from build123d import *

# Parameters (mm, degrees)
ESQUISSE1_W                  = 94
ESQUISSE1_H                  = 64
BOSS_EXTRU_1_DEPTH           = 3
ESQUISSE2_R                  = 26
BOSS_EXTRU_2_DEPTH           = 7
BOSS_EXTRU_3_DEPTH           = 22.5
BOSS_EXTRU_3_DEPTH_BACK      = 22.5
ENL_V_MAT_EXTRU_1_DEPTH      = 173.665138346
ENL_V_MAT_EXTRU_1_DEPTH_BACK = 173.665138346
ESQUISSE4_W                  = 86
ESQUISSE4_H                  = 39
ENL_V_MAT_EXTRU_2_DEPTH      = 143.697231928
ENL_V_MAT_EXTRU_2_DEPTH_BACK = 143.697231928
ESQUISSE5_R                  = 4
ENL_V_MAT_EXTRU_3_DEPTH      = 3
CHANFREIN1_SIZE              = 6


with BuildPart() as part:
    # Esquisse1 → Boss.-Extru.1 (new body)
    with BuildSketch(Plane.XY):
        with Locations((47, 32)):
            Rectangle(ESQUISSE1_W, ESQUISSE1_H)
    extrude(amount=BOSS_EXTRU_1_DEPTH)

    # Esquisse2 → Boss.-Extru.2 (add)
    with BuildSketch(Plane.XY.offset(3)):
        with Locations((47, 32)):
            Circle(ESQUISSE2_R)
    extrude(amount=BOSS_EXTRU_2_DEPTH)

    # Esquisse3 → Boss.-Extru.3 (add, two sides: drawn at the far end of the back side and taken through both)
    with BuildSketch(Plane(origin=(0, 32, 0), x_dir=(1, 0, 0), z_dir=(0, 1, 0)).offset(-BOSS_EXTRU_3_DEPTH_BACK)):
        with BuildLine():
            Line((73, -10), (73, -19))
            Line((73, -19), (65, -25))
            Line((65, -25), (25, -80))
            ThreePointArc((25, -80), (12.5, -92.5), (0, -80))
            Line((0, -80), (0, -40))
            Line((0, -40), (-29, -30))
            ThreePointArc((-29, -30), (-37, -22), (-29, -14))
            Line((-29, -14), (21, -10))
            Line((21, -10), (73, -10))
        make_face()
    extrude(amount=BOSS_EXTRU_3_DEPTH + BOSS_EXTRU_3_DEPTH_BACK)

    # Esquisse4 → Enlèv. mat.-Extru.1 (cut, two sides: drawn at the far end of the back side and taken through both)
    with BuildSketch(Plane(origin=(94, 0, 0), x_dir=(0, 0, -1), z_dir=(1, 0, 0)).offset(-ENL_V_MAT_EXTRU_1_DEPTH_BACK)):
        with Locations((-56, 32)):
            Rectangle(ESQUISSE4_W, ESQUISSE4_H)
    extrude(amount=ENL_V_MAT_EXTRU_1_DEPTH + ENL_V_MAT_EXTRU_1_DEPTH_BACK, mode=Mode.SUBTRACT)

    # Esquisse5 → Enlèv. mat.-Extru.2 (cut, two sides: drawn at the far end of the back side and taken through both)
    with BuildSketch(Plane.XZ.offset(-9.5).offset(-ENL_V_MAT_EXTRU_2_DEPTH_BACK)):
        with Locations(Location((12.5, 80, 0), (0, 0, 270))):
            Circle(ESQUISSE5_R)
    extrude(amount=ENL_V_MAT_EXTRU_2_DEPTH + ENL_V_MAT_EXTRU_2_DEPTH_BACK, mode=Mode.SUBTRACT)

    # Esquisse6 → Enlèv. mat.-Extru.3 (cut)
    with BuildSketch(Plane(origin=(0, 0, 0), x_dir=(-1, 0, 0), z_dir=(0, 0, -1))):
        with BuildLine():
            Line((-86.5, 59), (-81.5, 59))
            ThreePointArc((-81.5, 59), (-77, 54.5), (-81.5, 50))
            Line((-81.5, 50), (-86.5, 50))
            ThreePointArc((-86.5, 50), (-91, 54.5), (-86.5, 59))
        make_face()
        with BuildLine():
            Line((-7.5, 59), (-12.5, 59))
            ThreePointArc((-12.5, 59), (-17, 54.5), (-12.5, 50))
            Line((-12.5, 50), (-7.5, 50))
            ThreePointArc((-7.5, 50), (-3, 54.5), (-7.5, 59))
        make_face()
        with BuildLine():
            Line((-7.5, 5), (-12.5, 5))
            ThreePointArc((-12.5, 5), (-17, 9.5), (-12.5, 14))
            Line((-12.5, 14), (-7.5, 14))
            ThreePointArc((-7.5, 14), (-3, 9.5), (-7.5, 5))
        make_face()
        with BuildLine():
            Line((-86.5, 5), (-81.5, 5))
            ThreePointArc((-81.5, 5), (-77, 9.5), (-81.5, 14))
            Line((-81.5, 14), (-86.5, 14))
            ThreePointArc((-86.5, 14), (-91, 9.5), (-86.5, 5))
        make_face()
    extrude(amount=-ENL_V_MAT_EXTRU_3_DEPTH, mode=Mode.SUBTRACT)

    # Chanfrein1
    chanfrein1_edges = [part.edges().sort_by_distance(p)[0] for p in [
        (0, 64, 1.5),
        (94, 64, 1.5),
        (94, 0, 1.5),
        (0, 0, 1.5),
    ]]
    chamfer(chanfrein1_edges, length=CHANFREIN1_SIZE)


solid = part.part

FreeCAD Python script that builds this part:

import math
import FreeCAD as App
import Part
import Sketcher

V = App.Vector
Q = App.Units.Quantity


def edges_at(feature, points):
    """Names of the edges that pass closest to the given points."""
    edges = feature.Shape.Edges
    near = lambda p: min(range(len(edges)), key=lambda i: edges[i].distToShape(Part.Vertex(*p))[0])
    return sorted({f"Edge{near(p) + 1}" for p in points})

doc = App.newDocument("Part")
body = doc.addObject("PartDesign::Body", "Body")

sketch1 = doc.addObject("Sketcher::SketchObject", "Sketch")
body.addObject(sketch1)
sketch1.AttachmentSupport = (doc.XY_Plane, [""])
sketch1.MapMode = "FlatFace"
sketch1.addGeometry(Part.LineSegment(V(0, 64, 0), V(0, 0, 0)), False)
sketch1.addGeometry(Part.LineSegment(V(0, 0, 0), V(94, 0, 0)), False)
sketch1.addGeometry(Part.LineSegment(V(94, 0, 0), V(94, 64, 0)), False)
sketch1.addGeometry(Part.LineSegment(V(94, 64, 0), V(0, 64, 0)), False)
sketch1.addConstraint(Sketcher.Constraint("Coincident", 0, 2, 1, 1))
sketch1.addConstraint(Sketcher.Constraint("Coincident", 1, 2, 2, 1))
sketch1.addConstraint(Sketcher.Constraint("Coincident", 2, 2, 3, 1))
sketch1.addConstraint(Sketcher.Constraint("Coincident", 3, 2, 0, 1))
sketch1.addConstraint(Sketcher.Constraint("Vertical", 0))
sketch1.addConstraint(Sketcher.Constraint("Horizontal", 1))
sketch1.addConstraint(Sketcher.Constraint("Vertical", 2))
sketch1.addConstraint(Sketcher.Constraint("Horizontal", 3))
sketch1.addConstraint(Sketcher.Constraint("Coincident", 0, 2, -1, 1))
sketch1.addConstraint(Sketcher.Constraint("DistanceX", 1, 1, 1, 2, Q("94 mm")))
sketch1.addConstraint(Sketcher.Constraint("DistanceY", 0, 2, 0, 1, Q("64 mm")))
pad1 = doc.addObject("PartDesign::Pad", "Pad")
body.addObject(pad1)
pad1.Profile = sketch1
pad1.Length = 3

sketch2 = doc.addObject("Sketcher::SketchObject", "Sketch001")
body.addObject(sketch2)
sketch2.AttachmentSupport = (doc.XY_Plane, [""])
sketch2.MapMode = "FlatFace"
sketch2.AttachmentOffset = App.Placement(V(0, 0, 3), App.Rotation())
sketch2.addGeometry(Part.Circle(V(47, 32, 0), V(0, 0, 1), 26), False)
sketch2.addConstraint(Sketcher.Constraint("Diameter", 0, Q("52 mm")))
sketch2.addConstraint(Sketcher.Constraint("DistanceX", -1, 1, 0, 3, Q("47 mm")))
sketch2.addConstraint(Sketcher.Constraint("DistanceY", -1, 1, 0, 3, Q("32 mm")))
pad2 = doc.addObject("PartDesign::Pad", "Pad001")
body.addObject(pad2)
pad2.Profile = sketch2
pad2.Length = 7

sketch3 = doc.addObject("Sketcher::SketchObject", "Sketch002")
body.addObject(sketch3)
sketch3.AttachmentSupport = (doc.XZ_Plane, [""])
sketch3.MapMode = "FlatFace"
sketch3.AttachmentOffset = App.Placement(V(0, 0, -32), App.Rotation())
sketch3.addGeometry(Part.LineSegment(V(73, 19, 0), V(73, 10, 0)), False)
sketch3.addGeometry(Part.LineSegment(V(73, 10, 0), V(21, 10, 0)), False)
sketch3.addGeometry(Part.LineSegment(V(21, 10, 0), V(-29, 14, 0)), False)
sketch3.addGeometry(Part.ArcOfCircle(Part.Circle(V(-29, 22, 0), V(0, 0, 1), 8), math.radians(90), math.radians(270)), False)
sketch3.addGeometry(Part.LineSegment(V(-29, 30, 0), V(0, 40, 0)), False)
sketch3.addGeometry(Part.LineSegment(V(0, 40, 0), V(0, 80, 0)), False)
sketch3.addGeometry(Part.ArcOfCircle(Part.Circle(V(12, 80, 0), V(0, 0, 1), 12), math.radians(0), math.radians(180)), False)
sketch3.addGeometry(Part.LineSegment(V(25, 80, 0), V(65, 25, 0)), False)
sketch3.addGeometry(Part.LineSegment(V(65, 25, 0), V(73, 19, 0)), False)
sketch3.addConstraint(Sketcher.Constraint("Coincident", 0, 2, 1, 1))
sketch3.addConstraint(Sketcher.Constraint("Coincident", 1, 2, 2, 1))
sketch3.addConstraint(Sketcher.Constraint("Coincident", 2, 2, 3, 2))
sketch3.addConstraint(Sketcher.Constraint("Coincident", 3, 1, 4, 1))
sketch3.addConstraint(Sketcher.Constraint("Coincident", 4, 2, 5, 1))
sketch3.addConstraint(Sketcher.Constraint("Tangent", 5, 2, 6, 2))
sketch3.addConstraint(Sketcher.Constraint("Coincident", 6, 1, 7, 1))
sketch3.addConstraint(Sketcher.Constraint("Coincident", 7, 2, 8, 1))
sketch3.addConstraint(Sketcher.Constraint("Coincident", 8, 2, 0, 1))
sketch3.addConstraint(Sketcher.Constraint("Vertical", 0))
sketch3.addConstraint(Sketcher.Constraint("Horizontal", 1))
sketch3.addConstraint(Sketcher.Constraint("Vertical", 5))
sketch3.addConstraint(Sketcher.Constraint("PointOnObject", 4, 2, -2))
sketch3.addConstraint(Sketcher.Constraint("Horizontal", 5, 2, 6, 1))
sketch3.addConstraint(Sketcher.Constraint("Vertical", 3, 3, 2, 2))
sketch3.addConstraint(Sketcher.Constraint("Vertical", 2, 2, 3, 1))
sketch3.addConstraint(Sketcher.Constraint("Radius", 3, Q("8 mm")))
sketch3.addConstraint(Sketcher.Constraint("Radius", 6, Q("12.5 mm")))
sketch3.addConstraint(Sketcher.Constraint("DistanceX", 1, 2, 1, 1, Q("52 mm")))
sketch3.addConstraint(Sketcher.Constraint("DistanceY", 0, 2, 0, 1, Q("9 mm")))
sketch3.addConstraint(Sketcher.Constraint("DistanceY", 5, 1, 5, 2, Q("40 mm")))
sketch3.addConstraint(Sketcher.Constraint("Distance", 8, Q("10 mm")))
sketch3.addConstraint(Sketcher.Constraint("DistanceX", 3, 3, -1, 1, Q("29 mm")))
sketch3.addConstraint(Sketcher.Constraint("DistanceY", -1, 1, 3, 3, Q("22 mm")))
sketch3.addConstraint(Sketcher.Constraint("DistanceY", -1, 1, 6, 3, Q("80 mm")))
sketch3.addConstraint(Sketcher.Constraint("DistanceX", -1, 1, 0, 2, Q("73 mm")))
sketch3.addConstraint(Sketcher.Constraint("DistanceY", -1, 1, 0, 2, Q("10 mm")))
sketch3.addConstraint(Sketcher.Constraint("DistanceX", -1, 1, 7, 2, Q("65 mm")))
pad3 = doc.addObject("PartDesign::Pad", "Pad002")
body.addObject(pad3)
pad3.Profile = sketch3
pad3.Type = "TwoLengths"
pad3.Length = 22.5
pad3.Length2 = 22.5
pad3.Reversed = True

sketch4 = doc.addObject("Sketcher::SketchObject", "Sketch003")
body.addObject(sketch4)
sketch4.AttachmentSupport = (doc.YZ_Plane, [""])
sketch4.MapMode = "FlatFace"
sketch4.AttachmentOffset = App.Placement(V(0, 0, 94), App.Rotation())
sketch4.addGeometry(Part.LineSegment(V(52, 99, 0), V(12, 99, 0)), False)
sketch4.addGeometry(Part.LineSegment(V(12, 99, 0), V(12, 13, 0)), False)
sketch4.addGeometry(Part.LineSegment(V(12, 13, 0), V(52, 13, 0)), False)
sketch4.addGeometry(Part.LineSegment(V(52, 13, 0), V(52, 99, 0)), False)
sketch4.addConstraint(Sketcher.Constraint("Coincident", 0, 2, 1, 1))
sketch4.addConstraint(Sketcher.Constraint("Coincident", 1, 2, 2, 1))
sketch4.addConstraint(Sketcher.Constraint("Coincident", 2, 2, 3, 1))
sketch4.addConstraint(Sketcher.Constraint("Coincident", 3, 2, 0, 1))
sketch4.addConstraint(Sketcher.Constraint("Horizontal", 0))
sketch4.addConstraint(Sketcher.Constraint("Vertical", 1))
sketch4.addConstraint(Sketcher.Constraint("Horizontal", 2))
sketch4.addConstraint(Sketcher.Constraint("Vertical", 3))
sketch4.addConstraint(Sketcher.Constraint("DistanceX", 0, 2, 0, 1, Q("39 mm")))
sketch4.addConstraint(Sketcher.Constraint("DistanceY", 1, 2, 1, 1, Q("86 mm")))
sketch4.addConstraint(Sketcher.Constraint("DistanceY", -1, 1, 0, 2, Q("99 mm")))
sketch4.addConstraint(Sketcher.Constraint("DistanceX", -1, 1, 0, 2, Q("12.5 mm")))
pocket1 = doc.addObject("PartDesign::Pocket", "Pocket")
body.addObject(pocket1)
pocket1.Profile = sketch4
pocket1.Type = "ThroughAll"
pocket1.Midplane = True

sketch5 = doc.addObject("Sketcher::SketchObject", "Sketch004")
body.addObject(sketch5)
sketch5.AttachmentSupport = (doc.XZ_Plane, [""])
sketch5.MapMode = "FlatFace"
sketch5.AttachmentOffset = App.Placement(V(0, 0, -9.5), App.Rotation())
sketch5.addGeometry(Part.Circle(V(12.5, 80, 0), V(0, 0, 1), 4), False)
sketch5.addConstraint(Sketcher.Constraint("Diameter", 0, Q("8 mm")))
sketch5.addConstraint(Sketcher.Constraint("DistanceY", -1, 1, 0, 3, Q("80 mm")))
sketch5.addConstraint(Sketcher.Constraint("DistanceX", -1, 1, 0, 3, Q("12.5 mm")))
pocket2 = doc.addObject("PartDesign::Pocket", "Pocket001")
body.addObject(pocket2)
pocket2.Profile = sketch5
pocket2.Type = "ThroughAll"
pocket2.Midplane = True

sketch6 = doc.addObject("Sketcher::SketchObject", "Sketch005")
body.addObject(sketch6)
sketch6.AttachmentSupport = (doc.XY_Plane, [""])
sketch6.MapMode = "FlatFace"
sketch6.addGeometry(Part.LineSegment(V(81.5, 59, 0), V(86.5, 59, 0)), False)
sketch6.addGeometry(Part.ArcOfCircle(Part.Circle(V(86.5, 54.5, 0), V(0, 0, 1), 4.5), math.radians(-90), math.radians(90)), False)
sketch6.addGeometry(Part.LineSegment(V(86.5, 50, 0), V(81.5, 50, 0)), False)
sketch6.addGeometry(Part.ArcOfCircle(Part.Circle(V(81.5, 54.5, 0), V(0, 0, 1), 4.5), math.radians(90), math.radians(270)), False)
sketch6.addGeometry(Part.LineSegment(V(7.5, 59, 0), V(12.5, 59, 0)), False)
sketch6.addGeometry(Part.ArcOfCircle(Part.Circle(V(12.5, 54.5, 0), V(0, 0, 1), 4.5), math.radians(-90), math.radians(90)), False)
sketch6.addGeometry(Part.LineSegment(V(12.5, 50, 0), V(7.5, 50, 0)), False)
sketch6.addGeometry(Part.ArcOfCircle(Part.Circle(V(7.5, 54.5, 0), V(0, 0, 1), 4.5), math.radians(90), math.radians(270)), False)
sketch6.addGeometry(Part.LineSegment(V(12.5, 5, 0), V(7.5, 5, 0)), False)
sketch6.addGeometry(Part.ArcOfCircle(Part.Circle(V(7.5, 9.5, 0), V(0, 0, 1), 4.5), math.radians(90), math.radians(270)), False)
sketch6.addGeometry(Part.LineSegment(V(7.5, 14, 0), V(12.5, 14, 0)), False)
sketch6.addGeometry(Part.ArcOfCircle(Part.Circle(V(12.5, 9.5, 0), V(0, 0, 1), 4.5), math.radians(-90), math.radians(90)), False)
sketch6.addGeometry(Part.LineSegment(V(86.5, 5, 0), V(81.5, 5, 0)), False)
sketch6.addGeometry(Part.ArcOfCircle(Part.Circle(V(81.5, 9.5, 0), V(0, 0, 1), 4.5), math.radians(90), math.radians(270)), False)
sketch6.addGeometry(Part.LineSegment(V(81.5, 14, 0), V(86.5, 14, 0)), False)
sketch6.addGeometry(Part.ArcOfCircle(Part.Circle(V(86.5, 9.5, 0), V(0, 0, 1), 4.5), math.radians(-90), math.radians(90)), False)
sketch6.addConstraint(Sketcher.Constraint("Tangent", 0, 2, 1, 2))
sketch6.addConstraint(Sketcher.Constraint("Tangent", 1, 1, 2, 1))
sketch6.addConstraint(Sketcher.Constraint("Tangent", 2, 2, 3, 2))
sketch6.addConstraint(Sketcher.Constraint("Tangent", 3, 1, 0, 1))
sketch6.addConstraint(Sketcher.Constraint("Tangent", 4, 2, 5, 2))
sketch6.addConstraint(Sketcher.Constraint("Tangent", 5, 1, 6, 1))
sketch6.addConstraint(Sketcher.Constraint("Tangent", 6, 2, 7, 2))
sketch6.addConstraint(Sketcher.Constraint("Tangent", 7, 1, 4, 1))
sketch6.addConstraint(Sketcher.Constraint("Tangent", 8, 2, 9, 2))
sketch6.addConstraint(Sketcher.Constraint("Tangent", 9, 1, 10, 1))
sketch6.addConstraint(Sketcher.Constraint("Tangent", 10, 2, 11, 2))
sketch6.addConstraint(Sketcher.Constraint("Tangent", 11, 1, 8, 1))
sketch6.addConstraint(Sketcher.Constraint("Tangent", 12, 2, 13, 2))
sketch6.addConstraint(Sketcher.Constraint("Tangent", 13, 1, 14, 1))
sketch6.addConstraint(Sketcher.Constraint("Tangent", 14, 2, 15, 2))
sketch6.addConstraint(Sketcher.Constraint("Tangent", 15, 1, 12, 1))
sketch6.addConstraint(Sketcher.Constraint("Horizontal", 0))
sketch6.addConstraint(Sketcher.Constraint("Horizontal", 2))
sketch6.addConstraint(Sketcher.Constraint("Horizontal", 4))
sketch6.addConstraint(Sketcher.Constraint("Horizontal", 6))
sketch6.addConstraint(Sketcher.Constraint("Horizontal", 8))
sketch6.addConstraint(Sketcher.Constraint("Horizontal", 10))
sketch6.addConstraint(Sketcher.Constraint("Horizontal", 12))
sketch6.addConstraint(Sketcher.Constraint("Horizontal", 14))
sketch6.addConstraint(Sketcher.Constraint("Equal", 3, 5))
sketch6.addConstraint(Sketcher.Constraint("Equal", 7, 9))
sketch6.addConstraint(Sketcher.Constraint("Equal", 11, 13))
sketch6.addConstraint(Sketcher.Constraint("Horizontal", 3, 3, 5, 3))
sketch6.addConstraint(Sketcher.Constraint("Horizontal", 11, 3, 13, 3))
sketch6.addConstraint(Sketcher.Constraint("Vertical", 7, 3, 9, 3))
sketch6.addConstraint(Sketcher.Constraint("Vertical", 5, 3, 11, 3))
sketch6.addConstraint(Sketcher.Constraint("Vertical", 3, 3, 13, 3))
sketch6.addConstraint(Sketcher.Constraint("Vertical", 1, 3, 15, 3))
sketch6.addConstraint(Sketcher.Constraint("Equal", 2, 4))
sketch6.addConstraint(Sketcher.Constraint("Radius", 1, Q("4.5 mm")))
sketch6.addConstraint(Sketcher.Constraint("DistanceX", 0, 1, 0, 2, Q("5 mm")))
sketch6.addConstraint(Sketcher.Constraint("DistanceY", -1, 1, 0, 2, Q("59 mm")))
sketch6.addConstraint(Sketcher.Constraint("DistanceY", -1, 1, 8, 2, Q("5 mm")))
sketch6.addConstraint(Sketcher.Constraint("DistanceX", 5, 3, 3, 3, Q("69 mm")))
sketch6.addConstraint(Sketcher.Constraint("DistanceX", -1, 1, 1, 3, Q("86.5 mm")))
pocket3 = doc.addObject("PartDesign::Pocket", "Pocket002")
body.addObject(pocket3)
pocket3.Profile = sketch6
pocket3.Length = 3
pocket3.Reversed = True
doc.recompute()

chamfer = doc.addObject("PartDesign::Chamfer", "Chamfer")
body.addObject(chamfer)
chamfer.Base = (pocket3, edges_at(pocket3, [
    (0, 64, 1.5),
    (94, 64, 1.5),
    (94, 0, 1.5),
    (0, 0, 1.5),
]))
chamfer.Size = 6

doc.recompute()
